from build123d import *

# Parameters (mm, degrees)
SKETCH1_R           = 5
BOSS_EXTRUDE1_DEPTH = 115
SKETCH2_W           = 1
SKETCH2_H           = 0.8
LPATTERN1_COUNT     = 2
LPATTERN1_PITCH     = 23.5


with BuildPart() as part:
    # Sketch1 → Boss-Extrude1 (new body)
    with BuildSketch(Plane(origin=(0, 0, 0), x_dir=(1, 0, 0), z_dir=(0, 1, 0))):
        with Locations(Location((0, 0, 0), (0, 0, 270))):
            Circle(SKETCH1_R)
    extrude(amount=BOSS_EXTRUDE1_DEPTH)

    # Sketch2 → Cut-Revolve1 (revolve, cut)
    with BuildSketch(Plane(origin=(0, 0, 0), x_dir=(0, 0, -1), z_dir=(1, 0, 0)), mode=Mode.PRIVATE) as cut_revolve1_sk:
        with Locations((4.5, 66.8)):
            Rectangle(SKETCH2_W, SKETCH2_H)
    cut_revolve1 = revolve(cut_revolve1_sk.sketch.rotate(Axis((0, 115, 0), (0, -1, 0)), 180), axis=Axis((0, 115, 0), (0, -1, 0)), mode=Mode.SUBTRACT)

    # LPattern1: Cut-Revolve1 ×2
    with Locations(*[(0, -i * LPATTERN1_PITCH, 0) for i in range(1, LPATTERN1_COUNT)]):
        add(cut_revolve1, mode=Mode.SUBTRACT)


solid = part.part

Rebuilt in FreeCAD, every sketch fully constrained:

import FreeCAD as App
import Part
import Sketcher

V = App.Vector
Q = App.Units.Quantity


def add_polygon(sketch, points):
    """Adds a closed chain of lines whose ends are joined by coincident constraints."""
    first, n = sketch.GeometryCount, len(points)
    for a, b in zip(points, points[1:] + points[:1]):
        sketch.addGeometry(Part.LineSegment(App.Vector(*a, 0), App.Vector(*b, 0)), False)
    for i in range(n):
        sketch.addConstraint(Sketcher.Constraint("Coincident", first + i, 2, first + (i + 1) % n, 1))

doc = App.newDocument("Part")
params = doc.addObject("Spreadsheet::Sheet", "Params")
for row, (alias, value) in enumerate([
    ("sketch1_diameter", "10 mm"),
    ("pad1_length", "115 mm"),
    ("sketch2_height", "1 mm"),
    ("sketch2_width", "0.8 mm"),
    ("groove_angle", "360 deg"),
    ("linearpattern_pitch", "23.5 mm"),
], start=1):
    params.set(f"A{row}", alias)
    params.set(f"B{row}", "=" + value)
    params.setAlias(f"B{row}", alias)

body = doc.addObject("PartDesign::Body", "Body")

sketch1 = body.newObject("Sketcher::SketchObject", "Sketch")
sketch1.AttachmentSupport = (doc.getObject("XZ_Plane"), [""])
sketch1.MapMode = "FlatFace"
sketch1.addGeometry(Part.Circle(V(0, 0, 0), V(0, 0, 1), 5), False)
sketch1.addConstraint([
    Sketcher.Constraint("Coincident", 0, 3, -1, 1),
    Sketcher.Constraint("Diameter", 0, Q("10 mm")),
])
sketch1.setExpression("Constraints[1]", "Params.sketch1_diameter")
pad1 = body.newObject("PartDesign::Pad", "Pad")
pad1.Profile = sketch1
pad1.setExpression("Length", "Params.pad1_length")
pad1.Reversed = True

sketch2 = body.newObject("Sketcher::SketchObject", "Sketch001")
sketch2.AttachmentSupport = (doc.getObject("YZ_Plane"), [""])
sketch2.MapMode = "FlatFace"
add_polygon(sketch2, [(67.2, -4), (66.4, -4), (66.4, -5), (67.2, -5)])
sketch2.addConstraint([
    Sketcher.Constraint("Horizontal", 0),
    Sketcher.Constraint("Vertical", 1),
    Sketcher.Constraint("Horizontal", 2),
    Sketcher.Constraint("Vertical", 3),
    Sketcher.Constraint("DistanceY", 1, 2, 1, 1, Q("1 mm")),
    Sketcher.Constraint("DistanceX", 0, 2, 0, 1, Q("0.8 mm")),
    Sketcher.Constraint("DistanceY", 0, 2, -1, 1, Q("4 mm")),
    Sketcher.Constraint("DistanceX", -1, 1, 0, 2, Q("66.4 mm")),
])
sketch2.setExpression("Constraints[8]", "Params.sketch2_height")
sketch2.setExpression("Constraints[9]", "Params.sketch2_width")
groove = body.newObject("PartDesign::Groove", "Groove")
groove.Profile = sketch2
groove.ReferenceAxis = (sketch2, ["H_Axis"])
groove.setExpression("Angle", "Params.groove_angle")
doc.recompute()

linearpattern = body.newObject("PartDesign::LinearPattern", "LinearPattern")
linearpattern.Originals = [groove]
linearpattern.Direction = (doc.getObject("Y_Axis"), [""])
linearpattern.Mode = "offset"
linearpattern.setExpression("Offset", "Params.linearpattern_pitch")
linearpattern.Occurrences = 2
linearpattern.Reversed = True
body.Tip = linearpattern

doc.recompute()
